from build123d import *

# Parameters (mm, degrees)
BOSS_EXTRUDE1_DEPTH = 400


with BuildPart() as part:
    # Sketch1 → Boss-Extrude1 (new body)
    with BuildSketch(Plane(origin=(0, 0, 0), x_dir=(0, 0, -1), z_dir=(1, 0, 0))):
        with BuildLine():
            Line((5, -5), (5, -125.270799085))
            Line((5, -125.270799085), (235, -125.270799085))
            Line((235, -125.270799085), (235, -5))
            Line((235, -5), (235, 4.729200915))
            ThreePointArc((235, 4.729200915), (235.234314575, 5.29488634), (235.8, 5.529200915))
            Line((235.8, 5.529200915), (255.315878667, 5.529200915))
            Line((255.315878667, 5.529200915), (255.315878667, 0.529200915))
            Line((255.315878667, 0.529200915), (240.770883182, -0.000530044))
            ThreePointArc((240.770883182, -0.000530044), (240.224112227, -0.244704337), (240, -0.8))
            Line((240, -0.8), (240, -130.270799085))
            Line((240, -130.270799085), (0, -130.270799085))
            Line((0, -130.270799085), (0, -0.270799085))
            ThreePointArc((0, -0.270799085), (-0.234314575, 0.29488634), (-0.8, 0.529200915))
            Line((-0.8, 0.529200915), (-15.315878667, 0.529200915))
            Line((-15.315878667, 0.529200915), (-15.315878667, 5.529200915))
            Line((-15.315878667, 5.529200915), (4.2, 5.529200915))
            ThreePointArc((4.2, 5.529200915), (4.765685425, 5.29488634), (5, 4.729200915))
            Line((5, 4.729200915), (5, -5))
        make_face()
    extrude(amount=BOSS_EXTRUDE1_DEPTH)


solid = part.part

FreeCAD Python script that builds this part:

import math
import FreeCAD as App
import Part
import Sketcher
Q = App.Units.Quantity

doc = App.newDocument("Part")
body = doc.addObject("PartDesign::Body", "Body")

# Sketch on YZ plane
sketch1 = body.newObject("Sketcher::SketchObject", "Sketch")
sketch1.AttachmentSupport = (doc.getObject("YZ_Plane"), [""])
sketch1.MapMode = "FlatFace"
sketch1.addGeometry(Part.LineSegment(App.Vector(-125.3, -235, 0), App.Vector(-125.3, -5, 0)), False)
sketch1.addGeometry(Part.LineSegment(App.Vector(-125.3, -5, 0), App.Vector(4.7, -5, 0)), False)
sketch1.addGeometry(Part.ArcOfCircle(Part.Circle(App.Vector(4.7, -4.2, 0), App.Vector(0, 0, 1), 0.8), math.radians(-90), math.radians(0)), False)
sketch1.addGeometry(Part.LineSegment(App.Vector(5.5, -4.2, 0), App.Vector(5.5, 15.3, 0)), False)
sketch1.addGeometry(Part.LineSegment(App.Vector(5.5, 15.3, 0), App.Vector(0.5, 15.3, 0)), False)
sketch1.addGeometry(Part.LineSegment(App.Vector(0.5, 15.3, 0), App.Vector(0.5, 0.8, 0)), False)
sketch1.addGeometry(Part.ArcOfCircle(Part.Circle(App.Vector(-0.3, 0.8, 0), App.Vector(0, 0, 1), 0.8), math.radians(-90), math.radians(0)), False)
sketch1.addGeometry(Part.LineSegment(App.Vector(-0.3, 0, 0), App.Vector(-130.3, 0, 0)), False)
sketch1.addGeometry(Part.LineSegment(App.Vector(-130.3, 0, 0), App.Vector(-130.3, -240, 0)), False)
sketch1.addGeometry(Part.LineSegment(App.Vector(-130.3, -240, 0), App.Vector(-0.8, -240, 0)), False)
sketch1.addGeometry(Part.ArcOfCircle(Part.Circle(App.Vector(-0.8, -240.8, 0), App.Vector(0, 0, 1), 0.8), math.radians(2), math.radians(90)), False)
sketch1.addGeometry(Part.LineSegment(App.Vector(0, -240.8, 0), App.Vector(0.5, -255.3, 0)), False)
sketch1.addGeometry(Part.LineSegment(App.Vector(0.5, -255.3, 0), App.Vector(5.5, -255.3, 0)), False)
sketch1.addGeometry(Part.LineSegment(App.Vector(5.5, -255.3, 0), App.Vector(5.5, -235.8, 0)), False)
sketch1.addGeometry(Part.ArcOfCircle(Part.Circle(App.Vector(4.7, -235.8, 0), App.Vector(0, 0, 1), 0.8), math.radians(0), math.radians(90)), False)
sketch1.addGeometry(Part.LineSegment(App.Vector(4.7, -235, 0), App.Vector(-125.3, -235, 0)), False)
sketch1.addConstraint(Sketcher.Constraint("Coincident", 0, 2, 1, 1))
sketch1.addConstraint(Sketcher.Constraint("Tangent", 1, 2, 2, 1))
sketch1.addConstraint(Sketcher.Constraint("Tangent", 2, 2, 3, 1))
sketch1.addConstraint(Sketcher.Constraint("Coincident", 3, 2, 4, 1))
sketch1.addConstraint(Sketcher.Constraint("Coincident", 4, 2, 5, 1))
sketch1.addConstraint(Sketcher.Constraint("Tangent", 5, 2, 6, 2))
sketch1.addConstraint(Sketcher.Constraint("Tangent", 6, 1, 7, 1))
sketch1.addConstraint(Sketcher.Constraint("Coincident", 7, 2, 8, 1))
sketch1.addConstraint(Sketcher.Constraint("Coincident", 8, 2, 9, 1))
sketch1.addConstraint(Sketcher.Constraint("Tangent", 9, 2, 10, 2))
sketch1.addConstraint(Sketcher.Constraint("Tangent", 10, 1, 11, 1))
sketch1.addConstraint(Sketcher.Constraint("Coincident", 11, 2, 12, 1))
sketch1.addConstraint(Sketcher.Constraint("Coincident", 12, 2, 13, 1))
sketch1.addConstraint(Sketcher.Constraint("Tangent", 13, 2, 14, 1))
sketch1.addConstraint(Sketcher.Constraint("Tangent", 14, 2, 15, 1))
sketch1.addConstraint(Sketcher.Constraint("Coincident", 15, 2, 0, 1))
sketch1.addConstraint(Sketcher.Constraint("Vertical", 0))
sketch1.addConstraint(Sketcher.Constraint("Horizontal", 1))
sketch1.addConstraint(Sketcher.Constraint("Vertical", 3))
sketch1.addConstraint(Sketcher.Constraint("Horizontal", 4))
sketch1.addConstraint(Sketcher.Constraint("Vertical", 5))
sketch1.addConstraint(Sketcher.Constraint("Horizontal", 7))
sketch1.addConstraint(Sketcher.Constraint("Vertical", 8))
sketch1.addConstraint(Sketcher.Constraint("Horizontal", 9))
sketch1.addConstraint(Sketcher.Constraint("Horizontal", 12))
sketch1.addConstraint(Sketcher.Constraint("Vertical", 13))
sketch1.addConstraint(Sketcher.Constraint("Horizontal", 15))
sketch1.addConstraint(Sketcher.Constraint("Equal", 2, 6))
sketch1.addConstraint(Sketcher.Constraint("Equal", 6, 10))
sketch1.addConstraint(Sketcher.Constraint("Equal", 10, 14))
sketch1.addConstraint(Sketcher.Constraint("PointOnObject", 6, 1, -1))
sketch1.addConstraint(Sketcher.Constraint("Vertical", 2, 3, 14, 3))
sketch1.addConstraint(Sketcher.Constraint("Vertical", 5, 2, 11, 2))
sketch1.addConstraint(Sketcher.Constraint("Equal", 1, 7))
sketch1.addConstraint(Sketcher.Constraint("Equal", 3, 13))
sketch1.addConstraint(Sketcher.Constraint("Radius", 2, Q("0.8 mm")))
sketch1.addConstraint(Sketcher.Constraint("DistanceX", 1, 1, 1, 2, Q("130 mm")))
sketch1.addConstraint(Sketcher.Constraint("DistanceX", 4, 2, 4, 1, Q("5 mm")))
sketch1.addConstraint(Sketcher.Constraint("DistanceY", 0, 1, 0, 2, Q("230 mm")))
sketch1.addConstraint(Sketcher.Constraint("DistanceY", 8, 2, 8, 1, Q("240 mm")))
sketch1.addConstraint(Sketcher.Constraint("DistanceY", 0, 2, -1, 1, Q("5 mm")))
sketch1.addConstraint(Sketcher.Constraint("DistanceX", 10, 3, -1, 1, Q("0.8 mm")))
sketch1.addConstraint(Sketcher.Constraint("DistanceX", 9, 1, 9, 2, Q("129.470799 mm")))
sketch1.addConstraint(Sketcher.Constraint("DistanceY", 3, 1, 3, 2, Q("19.515879 mm")))
pad1 = body.newObject("PartDesign::Pad", "Pad")
pad1.Profile = sketch1
pad1.Length = 400

doc.recompute()
